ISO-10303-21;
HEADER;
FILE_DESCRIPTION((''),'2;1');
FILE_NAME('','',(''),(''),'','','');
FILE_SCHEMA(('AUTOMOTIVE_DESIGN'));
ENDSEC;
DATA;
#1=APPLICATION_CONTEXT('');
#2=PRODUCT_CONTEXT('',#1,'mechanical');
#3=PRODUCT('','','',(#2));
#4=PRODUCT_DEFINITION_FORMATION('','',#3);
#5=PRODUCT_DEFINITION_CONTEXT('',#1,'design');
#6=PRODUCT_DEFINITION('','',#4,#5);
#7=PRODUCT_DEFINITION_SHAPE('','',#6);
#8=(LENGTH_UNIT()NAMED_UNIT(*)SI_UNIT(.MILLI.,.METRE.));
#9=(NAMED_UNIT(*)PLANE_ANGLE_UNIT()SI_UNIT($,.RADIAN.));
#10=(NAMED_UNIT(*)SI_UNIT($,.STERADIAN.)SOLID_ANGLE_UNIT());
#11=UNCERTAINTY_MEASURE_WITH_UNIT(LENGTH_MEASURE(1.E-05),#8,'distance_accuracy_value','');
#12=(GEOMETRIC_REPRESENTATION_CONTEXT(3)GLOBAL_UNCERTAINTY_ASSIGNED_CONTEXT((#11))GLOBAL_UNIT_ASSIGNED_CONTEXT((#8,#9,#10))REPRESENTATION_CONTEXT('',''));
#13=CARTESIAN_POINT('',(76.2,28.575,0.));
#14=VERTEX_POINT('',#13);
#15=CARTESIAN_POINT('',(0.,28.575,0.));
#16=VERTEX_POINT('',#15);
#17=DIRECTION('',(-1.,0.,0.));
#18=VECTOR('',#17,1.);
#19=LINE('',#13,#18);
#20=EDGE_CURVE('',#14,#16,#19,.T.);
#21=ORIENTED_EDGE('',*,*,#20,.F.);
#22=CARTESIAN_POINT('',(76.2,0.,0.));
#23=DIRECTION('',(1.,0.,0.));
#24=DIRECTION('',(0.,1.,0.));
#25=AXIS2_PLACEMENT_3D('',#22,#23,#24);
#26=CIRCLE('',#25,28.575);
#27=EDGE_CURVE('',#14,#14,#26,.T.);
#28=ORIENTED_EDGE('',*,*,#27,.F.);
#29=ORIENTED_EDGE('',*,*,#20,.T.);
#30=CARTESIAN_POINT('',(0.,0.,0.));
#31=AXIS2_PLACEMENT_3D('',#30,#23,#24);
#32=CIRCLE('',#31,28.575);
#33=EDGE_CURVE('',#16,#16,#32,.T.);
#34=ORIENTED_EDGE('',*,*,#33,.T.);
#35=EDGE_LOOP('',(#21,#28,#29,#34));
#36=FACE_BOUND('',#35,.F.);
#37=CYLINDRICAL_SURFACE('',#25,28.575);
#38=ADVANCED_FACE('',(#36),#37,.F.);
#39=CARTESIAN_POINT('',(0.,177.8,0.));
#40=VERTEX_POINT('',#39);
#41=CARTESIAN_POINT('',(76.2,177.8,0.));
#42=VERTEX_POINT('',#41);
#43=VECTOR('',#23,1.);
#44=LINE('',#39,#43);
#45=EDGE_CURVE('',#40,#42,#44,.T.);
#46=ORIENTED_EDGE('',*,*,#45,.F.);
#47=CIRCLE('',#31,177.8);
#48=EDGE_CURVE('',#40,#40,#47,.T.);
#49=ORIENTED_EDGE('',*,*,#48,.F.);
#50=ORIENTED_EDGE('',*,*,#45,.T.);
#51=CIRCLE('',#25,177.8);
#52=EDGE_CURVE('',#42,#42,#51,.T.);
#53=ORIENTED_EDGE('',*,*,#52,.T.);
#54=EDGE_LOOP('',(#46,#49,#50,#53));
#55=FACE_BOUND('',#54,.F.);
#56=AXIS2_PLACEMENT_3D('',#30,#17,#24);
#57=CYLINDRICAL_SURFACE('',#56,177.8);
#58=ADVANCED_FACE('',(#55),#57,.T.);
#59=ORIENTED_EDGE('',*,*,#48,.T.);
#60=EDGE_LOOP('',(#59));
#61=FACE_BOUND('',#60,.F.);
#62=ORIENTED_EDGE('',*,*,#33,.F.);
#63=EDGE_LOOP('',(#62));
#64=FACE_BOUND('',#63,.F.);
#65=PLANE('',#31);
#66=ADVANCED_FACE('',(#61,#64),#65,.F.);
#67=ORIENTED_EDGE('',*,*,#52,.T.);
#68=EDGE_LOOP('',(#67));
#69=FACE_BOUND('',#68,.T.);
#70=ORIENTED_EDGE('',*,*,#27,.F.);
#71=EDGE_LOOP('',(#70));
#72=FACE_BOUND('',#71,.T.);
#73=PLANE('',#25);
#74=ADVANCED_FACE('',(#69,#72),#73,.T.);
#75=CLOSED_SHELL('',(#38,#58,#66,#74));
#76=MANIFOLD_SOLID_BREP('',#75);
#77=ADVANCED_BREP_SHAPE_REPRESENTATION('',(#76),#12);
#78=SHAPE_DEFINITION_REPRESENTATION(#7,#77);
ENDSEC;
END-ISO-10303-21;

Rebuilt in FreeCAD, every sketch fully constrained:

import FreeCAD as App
import Part
import Sketcher

V = App.Vector
Q = App.Units.Quantity

doc = App.newDocument("Part")
body = doc.addObject("PartDesign::Body", "Body")

sketch1 = body.newObject("Sketcher::SketchObject", "Sketch")
sketch1.AttachmentSupport = (doc.getObject("YZ_Plane"), [""])
sketch1.MapMode = "FlatFace"
sketch1.addGeometry(Part.Circle(V(0, 0, 0), V(0, 0, 1), 178), False)
sketch1.addConstraint(Sketcher.Constraint("Coincident", 0, 3, -1, 1))
sketch1.addConstraint(Sketcher.Constraint("Diameter", 0, Q("14 in")))
pad1 = body.newObject("PartDesign::Pad", "Pad")
pad1.Profile = sketch1
pad1.Length = Q("3 in")

sketch2 = body.newObject("Sketcher::SketchObject", "Sketch001")
sketch2.AttachmentSupport = (doc.getObject("YZ_Plane"), [""])
sketch2.MapMode = "FlatFace"
sketch2.AttachmentOffset = App.Placement(V(0, 0, 3 * 25.4), App.Rotation())
sketch2.addGeometry(Part.Circle(V(0, 0, 0), V(0, 0, 1), 29), False)
sketch2.addConstraint(Sketcher.Constraint("Coincident", 0, 3, -1, 1))
sketch2.addConstraint(Sketcher.Constraint("Diameter", 0, Q("2.25 in")))
pocket1 = body.newObject("PartDesign::Pocket", "Pocket")
pocket1.Profile = sketch2
pocket1.Type = "ThroughAll"

doc.recompute()
